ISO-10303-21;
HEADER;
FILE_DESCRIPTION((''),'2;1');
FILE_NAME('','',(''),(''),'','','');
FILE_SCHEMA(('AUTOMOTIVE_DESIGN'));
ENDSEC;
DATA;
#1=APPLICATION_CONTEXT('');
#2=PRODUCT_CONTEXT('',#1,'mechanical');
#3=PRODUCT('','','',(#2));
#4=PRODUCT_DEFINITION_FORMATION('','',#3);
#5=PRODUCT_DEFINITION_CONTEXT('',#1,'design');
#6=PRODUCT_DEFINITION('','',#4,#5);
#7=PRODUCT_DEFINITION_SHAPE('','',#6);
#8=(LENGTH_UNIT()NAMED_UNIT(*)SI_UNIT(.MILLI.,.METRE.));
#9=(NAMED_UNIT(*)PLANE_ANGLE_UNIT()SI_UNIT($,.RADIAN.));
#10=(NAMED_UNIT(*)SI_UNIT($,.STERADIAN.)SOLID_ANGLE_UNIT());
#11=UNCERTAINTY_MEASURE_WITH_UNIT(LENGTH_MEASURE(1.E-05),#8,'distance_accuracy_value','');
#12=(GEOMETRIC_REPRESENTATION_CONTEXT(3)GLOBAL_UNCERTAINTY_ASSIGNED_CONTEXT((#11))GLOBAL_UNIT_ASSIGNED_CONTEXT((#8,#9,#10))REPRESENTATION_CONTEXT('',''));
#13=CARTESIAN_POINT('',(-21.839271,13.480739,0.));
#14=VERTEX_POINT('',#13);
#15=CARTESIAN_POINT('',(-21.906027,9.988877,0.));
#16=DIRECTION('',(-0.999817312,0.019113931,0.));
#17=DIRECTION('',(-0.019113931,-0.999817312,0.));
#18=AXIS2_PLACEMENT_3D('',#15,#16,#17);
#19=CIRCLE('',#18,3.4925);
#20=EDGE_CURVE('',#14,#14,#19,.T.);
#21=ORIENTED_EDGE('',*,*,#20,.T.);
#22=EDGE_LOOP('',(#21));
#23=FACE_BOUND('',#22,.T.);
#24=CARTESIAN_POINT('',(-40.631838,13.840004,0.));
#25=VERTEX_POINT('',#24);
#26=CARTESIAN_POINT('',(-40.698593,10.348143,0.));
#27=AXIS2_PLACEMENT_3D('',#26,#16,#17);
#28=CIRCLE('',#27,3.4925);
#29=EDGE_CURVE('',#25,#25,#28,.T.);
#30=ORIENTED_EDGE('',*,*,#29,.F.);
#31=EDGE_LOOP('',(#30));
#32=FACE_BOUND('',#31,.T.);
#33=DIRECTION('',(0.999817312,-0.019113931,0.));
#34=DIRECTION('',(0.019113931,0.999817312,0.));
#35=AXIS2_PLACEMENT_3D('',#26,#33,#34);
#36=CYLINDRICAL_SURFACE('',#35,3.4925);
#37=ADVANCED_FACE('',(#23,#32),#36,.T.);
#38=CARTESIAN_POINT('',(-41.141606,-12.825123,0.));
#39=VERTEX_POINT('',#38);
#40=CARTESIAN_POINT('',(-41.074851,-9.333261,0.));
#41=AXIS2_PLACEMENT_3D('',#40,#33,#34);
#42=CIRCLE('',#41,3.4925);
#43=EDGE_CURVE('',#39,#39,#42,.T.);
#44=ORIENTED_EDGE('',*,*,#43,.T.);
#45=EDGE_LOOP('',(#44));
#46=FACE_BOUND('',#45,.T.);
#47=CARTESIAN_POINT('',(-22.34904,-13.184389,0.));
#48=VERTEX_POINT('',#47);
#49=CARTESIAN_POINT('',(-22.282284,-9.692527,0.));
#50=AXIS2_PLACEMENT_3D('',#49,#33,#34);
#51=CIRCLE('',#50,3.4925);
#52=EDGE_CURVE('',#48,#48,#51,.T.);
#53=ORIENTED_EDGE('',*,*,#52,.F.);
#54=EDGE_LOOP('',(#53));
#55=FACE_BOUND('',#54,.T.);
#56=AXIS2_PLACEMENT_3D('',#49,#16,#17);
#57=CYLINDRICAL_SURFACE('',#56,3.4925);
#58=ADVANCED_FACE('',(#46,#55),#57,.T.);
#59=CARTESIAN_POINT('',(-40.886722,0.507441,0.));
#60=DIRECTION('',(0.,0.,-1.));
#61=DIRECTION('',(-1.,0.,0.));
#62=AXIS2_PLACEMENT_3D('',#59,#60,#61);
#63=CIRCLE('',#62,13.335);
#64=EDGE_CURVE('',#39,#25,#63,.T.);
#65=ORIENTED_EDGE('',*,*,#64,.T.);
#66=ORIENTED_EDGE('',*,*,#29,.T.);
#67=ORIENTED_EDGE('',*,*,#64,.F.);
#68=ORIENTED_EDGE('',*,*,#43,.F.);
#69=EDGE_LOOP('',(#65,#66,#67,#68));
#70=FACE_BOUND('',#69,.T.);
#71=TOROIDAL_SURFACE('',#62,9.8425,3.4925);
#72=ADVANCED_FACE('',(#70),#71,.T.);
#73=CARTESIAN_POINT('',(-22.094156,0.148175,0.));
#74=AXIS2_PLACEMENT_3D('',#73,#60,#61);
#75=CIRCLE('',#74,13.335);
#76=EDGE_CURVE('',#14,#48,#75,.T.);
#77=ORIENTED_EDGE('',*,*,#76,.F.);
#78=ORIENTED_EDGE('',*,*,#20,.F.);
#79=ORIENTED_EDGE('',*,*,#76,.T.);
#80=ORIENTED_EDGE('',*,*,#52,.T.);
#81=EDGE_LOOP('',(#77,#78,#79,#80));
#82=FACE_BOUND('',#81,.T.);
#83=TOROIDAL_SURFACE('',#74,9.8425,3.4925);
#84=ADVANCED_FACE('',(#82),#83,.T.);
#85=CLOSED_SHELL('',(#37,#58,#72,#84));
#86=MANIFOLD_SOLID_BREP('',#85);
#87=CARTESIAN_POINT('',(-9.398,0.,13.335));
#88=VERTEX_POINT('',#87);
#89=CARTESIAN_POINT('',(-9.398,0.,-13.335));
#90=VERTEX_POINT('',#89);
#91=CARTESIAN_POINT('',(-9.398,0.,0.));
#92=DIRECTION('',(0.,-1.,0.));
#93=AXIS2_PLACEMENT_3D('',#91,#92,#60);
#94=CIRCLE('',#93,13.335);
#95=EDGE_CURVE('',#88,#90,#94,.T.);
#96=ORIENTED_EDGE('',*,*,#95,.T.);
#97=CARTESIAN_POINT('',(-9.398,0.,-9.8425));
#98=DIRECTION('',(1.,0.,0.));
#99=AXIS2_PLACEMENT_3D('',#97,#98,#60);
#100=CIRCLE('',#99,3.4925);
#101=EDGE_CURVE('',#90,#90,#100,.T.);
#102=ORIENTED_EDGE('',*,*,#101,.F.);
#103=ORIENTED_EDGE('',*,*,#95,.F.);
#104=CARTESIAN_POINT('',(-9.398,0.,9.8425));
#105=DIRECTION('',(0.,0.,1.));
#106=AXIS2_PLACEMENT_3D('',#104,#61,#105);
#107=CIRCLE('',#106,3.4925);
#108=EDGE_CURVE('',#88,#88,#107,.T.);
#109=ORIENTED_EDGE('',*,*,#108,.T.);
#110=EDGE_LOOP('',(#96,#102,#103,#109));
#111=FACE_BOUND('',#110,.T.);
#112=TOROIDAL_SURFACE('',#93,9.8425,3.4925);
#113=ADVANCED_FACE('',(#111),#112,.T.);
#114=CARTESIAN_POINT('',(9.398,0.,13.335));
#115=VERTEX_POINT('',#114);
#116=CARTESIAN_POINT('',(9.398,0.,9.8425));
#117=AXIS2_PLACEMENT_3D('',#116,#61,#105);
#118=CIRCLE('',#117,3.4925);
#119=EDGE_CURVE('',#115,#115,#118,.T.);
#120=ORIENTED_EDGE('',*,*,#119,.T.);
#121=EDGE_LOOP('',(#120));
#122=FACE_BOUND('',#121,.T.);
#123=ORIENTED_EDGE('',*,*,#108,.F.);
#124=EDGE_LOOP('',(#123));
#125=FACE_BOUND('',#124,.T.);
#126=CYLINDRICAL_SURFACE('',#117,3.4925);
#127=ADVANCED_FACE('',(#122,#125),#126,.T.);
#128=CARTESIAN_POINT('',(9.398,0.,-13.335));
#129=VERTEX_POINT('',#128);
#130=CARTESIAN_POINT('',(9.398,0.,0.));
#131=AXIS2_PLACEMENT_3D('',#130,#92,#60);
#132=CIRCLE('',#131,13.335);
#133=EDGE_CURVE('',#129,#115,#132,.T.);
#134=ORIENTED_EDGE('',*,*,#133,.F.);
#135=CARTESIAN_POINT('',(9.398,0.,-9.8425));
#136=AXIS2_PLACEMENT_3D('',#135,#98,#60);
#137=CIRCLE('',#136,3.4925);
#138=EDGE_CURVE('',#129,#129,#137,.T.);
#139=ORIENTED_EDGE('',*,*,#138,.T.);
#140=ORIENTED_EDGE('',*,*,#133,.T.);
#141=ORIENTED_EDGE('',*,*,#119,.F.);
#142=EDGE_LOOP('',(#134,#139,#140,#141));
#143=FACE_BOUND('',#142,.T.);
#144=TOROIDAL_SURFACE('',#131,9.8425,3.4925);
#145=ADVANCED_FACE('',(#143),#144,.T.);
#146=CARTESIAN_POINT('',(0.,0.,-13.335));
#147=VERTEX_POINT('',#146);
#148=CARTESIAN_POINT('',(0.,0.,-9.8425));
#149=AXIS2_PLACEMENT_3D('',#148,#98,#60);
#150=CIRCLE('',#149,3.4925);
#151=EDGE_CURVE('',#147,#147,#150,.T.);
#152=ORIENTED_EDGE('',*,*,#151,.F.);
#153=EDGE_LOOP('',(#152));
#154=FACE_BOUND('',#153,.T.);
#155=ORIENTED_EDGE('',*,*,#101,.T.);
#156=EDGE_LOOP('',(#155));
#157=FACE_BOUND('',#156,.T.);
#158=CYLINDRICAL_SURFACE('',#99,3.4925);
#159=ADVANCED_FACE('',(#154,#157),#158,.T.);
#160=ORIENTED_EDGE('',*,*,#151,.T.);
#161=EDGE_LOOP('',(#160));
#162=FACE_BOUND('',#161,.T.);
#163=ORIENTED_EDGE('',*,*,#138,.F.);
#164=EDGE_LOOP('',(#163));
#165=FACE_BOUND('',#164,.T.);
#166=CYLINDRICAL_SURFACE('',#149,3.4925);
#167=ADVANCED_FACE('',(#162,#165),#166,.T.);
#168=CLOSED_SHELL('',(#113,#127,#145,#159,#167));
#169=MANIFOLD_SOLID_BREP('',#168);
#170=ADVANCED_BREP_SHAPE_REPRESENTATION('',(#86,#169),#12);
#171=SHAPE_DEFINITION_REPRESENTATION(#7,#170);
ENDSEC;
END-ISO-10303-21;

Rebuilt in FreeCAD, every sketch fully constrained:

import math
import FreeCAD as App
import Part
import Sketcher
Q = App.Units.Quantity

doc = App.newDocument("Part")
body = doc.addObject("PartDesign::Body", "Body")

# Sketch on YZ plane
sketch1 = body.newObject("Sketcher::SketchObject", "Sketch")
sketch1.AttachmentSupport = (doc.getObject("YZ_Plane"), [""])
sketch1.MapMode = "FlatFace"
sketch1.addGeometry(Part.Circle(App.Vector(0, -9.8, 0), App.Vector(0, 0, 1), 3.5), False)
sketch1.addConstraint([
    Sketcher.Constraint("PointOnObject", 0, 3, -2),
    Sketcher.Constraint("Diameter", 0, Q("0.275 in")),
    Sketcher.Constraint("DistanceY", 0, 3, -1, 1, Q("0.3875 in")),
])

# Sketch on XZ plane
sketch2 = body.newObject("Sketcher::SketchObject", "Sketch001")
sketch2.AttachmentSupport = (doc.getObject("XZ_Plane"), [""])
sketch2.MapMode = "FlatFace"
sketch2.addGeometry([
    Part.LineSegment(App.Vector(9, -10, 0), App.Vector(-9, -10, 0)),
    Part.ArcOfCircle(Part.Circle(App.Vector(-9, 0, 0), App.Vector(0, 0, 1), 10), math.radians(90), math.radians(270)),
    Part.LineSegment(App.Vector(-9, 10, 0), App.Vector(9, 10, 0)),
    Part.ArcOfCircle(Part.Circle(App.Vector(9, 0, 0), App.Vector(0, 0, 1), 10), math.radians(-90), math.radians(90)),
], False)
sketch2.addConstraint([
    Sketcher.Constraint("Tangent", 0, 2, 1, 2),
    Sketcher.Constraint("Tangent", 1, 1, 2, 1),
    Sketcher.Constraint("Tangent", 2, 2, 3, 2),
    Sketcher.Constraint("Tangent", 3, 1, 0, 1),
    Sketcher.Constraint("Horizontal", 0),
    Sketcher.Constraint("Horizontal", 2),
    Sketcher.Constraint("Symmetric", 1, 3, 3, 3, -1, 1),
    Sketcher.Constraint("DistanceX", 0, 2, 0, 1, Q("0.74 in")),
    Sketcher.Constraint("Radius", 1, Q("0.3875 in")),
])
doc.recompute()

additivepipe = body.newObject("PartDesign::AdditivePipe", "AdditivePipe")
additivepipe.Profile = sketch1
additivepipe.Spine = (sketch2, ["Edge1", "Edge2", "Edge3", "Edge4"])
body2 = doc.addObject("PartDesign::Body", "Body001")

# Sketch on an angled plane
sketch3 = body2.newObject("Sketcher::SketchObject", "Sketch002")
sketch3.Placement = App.Placement(App.Vector(-21.906027, 9.988877, 0), App.Rotation(App.Vector(0, 0, 1), App.Vector(0.019113931, 0.999817312, 0), App.Vector(-0.999817312, 0.019113931, 0), "ZXY"))
sketch3.addGeometry(Part.Circle(App.Vector(0, 0, 0), App.Vector(0, 0, 1), 3.5), False)
sketch3.addConstraint([
    Sketcher.Constraint("Coincident", 0, 3, -1, 1),
    Sketcher.Constraint("Diameter", 0, Q("0.275 in")),
])

# Sketch on XY plane
sketch4 = body2.newObject("Sketcher::SketchObject", "Sketch003")
sketch4.AttachmentSupport = (doc.getObject("XY_Plane001"), [""])
sketch4.MapMode = "FlatFace"
sketch4.addGeometry([
    Part.LineSegment(App.Vector(-22, 10, 0), App.Vector(-41, 10, 0)),
    Part.ArcOfCircle(Part.Circle(App.Vector(-41, 1, 0), App.Vector(0, 0, 1), 10), math.radians(89), math.radians(269)),
    Part.LineSegment(App.Vector(-41, -9, 0), App.Vector(-22, -10, 0)),
    Part.ArcOfCircle(Part.Circle(App.Vector(-22, 0, 0), App.Vector(0, 0, 1), 10), math.radians(-91), math.radians(89)),
], False)
sketch4.addConstraint([
    Sketcher.Constraint("Tangent", 0, 2, 1, 1),
    Sketcher.Constraint("Tangent", 1, 2, 2, 1),
    Sketcher.Constraint("Tangent", 2, 2, 3, 1),
    Sketcher.Constraint("Tangent", 3, 2, 0, 1),
    Sketcher.Constraint("Equal", 1, 3),
    Sketcher.Constraint("Radius", 1, Q("0.3875 in")),
    Sketcher.Constraint("Distance", 0, Q("0.74 in")),
    Sketcher.Constraint("DistanceY", 1, 3, 0, 2, 9.840702),
    Sketcher.Constraint("DistanceX", 1, 3, -1, 1, 40.886722),
    Sketcher.Constraint("DistanceY", -1, 1, 1, 3, 0.507441),
])
doc.recompute()

additivepipe2 = body2.newObject("PartDesign::AdditivePipe", "AdditivePipe001")
additivepipe2.Profile = sketch3
additivepipe2.Spine = (sketch4, ["Edge1", "Edge2", "Edge3", "Edge4"])

doc.recompute()
